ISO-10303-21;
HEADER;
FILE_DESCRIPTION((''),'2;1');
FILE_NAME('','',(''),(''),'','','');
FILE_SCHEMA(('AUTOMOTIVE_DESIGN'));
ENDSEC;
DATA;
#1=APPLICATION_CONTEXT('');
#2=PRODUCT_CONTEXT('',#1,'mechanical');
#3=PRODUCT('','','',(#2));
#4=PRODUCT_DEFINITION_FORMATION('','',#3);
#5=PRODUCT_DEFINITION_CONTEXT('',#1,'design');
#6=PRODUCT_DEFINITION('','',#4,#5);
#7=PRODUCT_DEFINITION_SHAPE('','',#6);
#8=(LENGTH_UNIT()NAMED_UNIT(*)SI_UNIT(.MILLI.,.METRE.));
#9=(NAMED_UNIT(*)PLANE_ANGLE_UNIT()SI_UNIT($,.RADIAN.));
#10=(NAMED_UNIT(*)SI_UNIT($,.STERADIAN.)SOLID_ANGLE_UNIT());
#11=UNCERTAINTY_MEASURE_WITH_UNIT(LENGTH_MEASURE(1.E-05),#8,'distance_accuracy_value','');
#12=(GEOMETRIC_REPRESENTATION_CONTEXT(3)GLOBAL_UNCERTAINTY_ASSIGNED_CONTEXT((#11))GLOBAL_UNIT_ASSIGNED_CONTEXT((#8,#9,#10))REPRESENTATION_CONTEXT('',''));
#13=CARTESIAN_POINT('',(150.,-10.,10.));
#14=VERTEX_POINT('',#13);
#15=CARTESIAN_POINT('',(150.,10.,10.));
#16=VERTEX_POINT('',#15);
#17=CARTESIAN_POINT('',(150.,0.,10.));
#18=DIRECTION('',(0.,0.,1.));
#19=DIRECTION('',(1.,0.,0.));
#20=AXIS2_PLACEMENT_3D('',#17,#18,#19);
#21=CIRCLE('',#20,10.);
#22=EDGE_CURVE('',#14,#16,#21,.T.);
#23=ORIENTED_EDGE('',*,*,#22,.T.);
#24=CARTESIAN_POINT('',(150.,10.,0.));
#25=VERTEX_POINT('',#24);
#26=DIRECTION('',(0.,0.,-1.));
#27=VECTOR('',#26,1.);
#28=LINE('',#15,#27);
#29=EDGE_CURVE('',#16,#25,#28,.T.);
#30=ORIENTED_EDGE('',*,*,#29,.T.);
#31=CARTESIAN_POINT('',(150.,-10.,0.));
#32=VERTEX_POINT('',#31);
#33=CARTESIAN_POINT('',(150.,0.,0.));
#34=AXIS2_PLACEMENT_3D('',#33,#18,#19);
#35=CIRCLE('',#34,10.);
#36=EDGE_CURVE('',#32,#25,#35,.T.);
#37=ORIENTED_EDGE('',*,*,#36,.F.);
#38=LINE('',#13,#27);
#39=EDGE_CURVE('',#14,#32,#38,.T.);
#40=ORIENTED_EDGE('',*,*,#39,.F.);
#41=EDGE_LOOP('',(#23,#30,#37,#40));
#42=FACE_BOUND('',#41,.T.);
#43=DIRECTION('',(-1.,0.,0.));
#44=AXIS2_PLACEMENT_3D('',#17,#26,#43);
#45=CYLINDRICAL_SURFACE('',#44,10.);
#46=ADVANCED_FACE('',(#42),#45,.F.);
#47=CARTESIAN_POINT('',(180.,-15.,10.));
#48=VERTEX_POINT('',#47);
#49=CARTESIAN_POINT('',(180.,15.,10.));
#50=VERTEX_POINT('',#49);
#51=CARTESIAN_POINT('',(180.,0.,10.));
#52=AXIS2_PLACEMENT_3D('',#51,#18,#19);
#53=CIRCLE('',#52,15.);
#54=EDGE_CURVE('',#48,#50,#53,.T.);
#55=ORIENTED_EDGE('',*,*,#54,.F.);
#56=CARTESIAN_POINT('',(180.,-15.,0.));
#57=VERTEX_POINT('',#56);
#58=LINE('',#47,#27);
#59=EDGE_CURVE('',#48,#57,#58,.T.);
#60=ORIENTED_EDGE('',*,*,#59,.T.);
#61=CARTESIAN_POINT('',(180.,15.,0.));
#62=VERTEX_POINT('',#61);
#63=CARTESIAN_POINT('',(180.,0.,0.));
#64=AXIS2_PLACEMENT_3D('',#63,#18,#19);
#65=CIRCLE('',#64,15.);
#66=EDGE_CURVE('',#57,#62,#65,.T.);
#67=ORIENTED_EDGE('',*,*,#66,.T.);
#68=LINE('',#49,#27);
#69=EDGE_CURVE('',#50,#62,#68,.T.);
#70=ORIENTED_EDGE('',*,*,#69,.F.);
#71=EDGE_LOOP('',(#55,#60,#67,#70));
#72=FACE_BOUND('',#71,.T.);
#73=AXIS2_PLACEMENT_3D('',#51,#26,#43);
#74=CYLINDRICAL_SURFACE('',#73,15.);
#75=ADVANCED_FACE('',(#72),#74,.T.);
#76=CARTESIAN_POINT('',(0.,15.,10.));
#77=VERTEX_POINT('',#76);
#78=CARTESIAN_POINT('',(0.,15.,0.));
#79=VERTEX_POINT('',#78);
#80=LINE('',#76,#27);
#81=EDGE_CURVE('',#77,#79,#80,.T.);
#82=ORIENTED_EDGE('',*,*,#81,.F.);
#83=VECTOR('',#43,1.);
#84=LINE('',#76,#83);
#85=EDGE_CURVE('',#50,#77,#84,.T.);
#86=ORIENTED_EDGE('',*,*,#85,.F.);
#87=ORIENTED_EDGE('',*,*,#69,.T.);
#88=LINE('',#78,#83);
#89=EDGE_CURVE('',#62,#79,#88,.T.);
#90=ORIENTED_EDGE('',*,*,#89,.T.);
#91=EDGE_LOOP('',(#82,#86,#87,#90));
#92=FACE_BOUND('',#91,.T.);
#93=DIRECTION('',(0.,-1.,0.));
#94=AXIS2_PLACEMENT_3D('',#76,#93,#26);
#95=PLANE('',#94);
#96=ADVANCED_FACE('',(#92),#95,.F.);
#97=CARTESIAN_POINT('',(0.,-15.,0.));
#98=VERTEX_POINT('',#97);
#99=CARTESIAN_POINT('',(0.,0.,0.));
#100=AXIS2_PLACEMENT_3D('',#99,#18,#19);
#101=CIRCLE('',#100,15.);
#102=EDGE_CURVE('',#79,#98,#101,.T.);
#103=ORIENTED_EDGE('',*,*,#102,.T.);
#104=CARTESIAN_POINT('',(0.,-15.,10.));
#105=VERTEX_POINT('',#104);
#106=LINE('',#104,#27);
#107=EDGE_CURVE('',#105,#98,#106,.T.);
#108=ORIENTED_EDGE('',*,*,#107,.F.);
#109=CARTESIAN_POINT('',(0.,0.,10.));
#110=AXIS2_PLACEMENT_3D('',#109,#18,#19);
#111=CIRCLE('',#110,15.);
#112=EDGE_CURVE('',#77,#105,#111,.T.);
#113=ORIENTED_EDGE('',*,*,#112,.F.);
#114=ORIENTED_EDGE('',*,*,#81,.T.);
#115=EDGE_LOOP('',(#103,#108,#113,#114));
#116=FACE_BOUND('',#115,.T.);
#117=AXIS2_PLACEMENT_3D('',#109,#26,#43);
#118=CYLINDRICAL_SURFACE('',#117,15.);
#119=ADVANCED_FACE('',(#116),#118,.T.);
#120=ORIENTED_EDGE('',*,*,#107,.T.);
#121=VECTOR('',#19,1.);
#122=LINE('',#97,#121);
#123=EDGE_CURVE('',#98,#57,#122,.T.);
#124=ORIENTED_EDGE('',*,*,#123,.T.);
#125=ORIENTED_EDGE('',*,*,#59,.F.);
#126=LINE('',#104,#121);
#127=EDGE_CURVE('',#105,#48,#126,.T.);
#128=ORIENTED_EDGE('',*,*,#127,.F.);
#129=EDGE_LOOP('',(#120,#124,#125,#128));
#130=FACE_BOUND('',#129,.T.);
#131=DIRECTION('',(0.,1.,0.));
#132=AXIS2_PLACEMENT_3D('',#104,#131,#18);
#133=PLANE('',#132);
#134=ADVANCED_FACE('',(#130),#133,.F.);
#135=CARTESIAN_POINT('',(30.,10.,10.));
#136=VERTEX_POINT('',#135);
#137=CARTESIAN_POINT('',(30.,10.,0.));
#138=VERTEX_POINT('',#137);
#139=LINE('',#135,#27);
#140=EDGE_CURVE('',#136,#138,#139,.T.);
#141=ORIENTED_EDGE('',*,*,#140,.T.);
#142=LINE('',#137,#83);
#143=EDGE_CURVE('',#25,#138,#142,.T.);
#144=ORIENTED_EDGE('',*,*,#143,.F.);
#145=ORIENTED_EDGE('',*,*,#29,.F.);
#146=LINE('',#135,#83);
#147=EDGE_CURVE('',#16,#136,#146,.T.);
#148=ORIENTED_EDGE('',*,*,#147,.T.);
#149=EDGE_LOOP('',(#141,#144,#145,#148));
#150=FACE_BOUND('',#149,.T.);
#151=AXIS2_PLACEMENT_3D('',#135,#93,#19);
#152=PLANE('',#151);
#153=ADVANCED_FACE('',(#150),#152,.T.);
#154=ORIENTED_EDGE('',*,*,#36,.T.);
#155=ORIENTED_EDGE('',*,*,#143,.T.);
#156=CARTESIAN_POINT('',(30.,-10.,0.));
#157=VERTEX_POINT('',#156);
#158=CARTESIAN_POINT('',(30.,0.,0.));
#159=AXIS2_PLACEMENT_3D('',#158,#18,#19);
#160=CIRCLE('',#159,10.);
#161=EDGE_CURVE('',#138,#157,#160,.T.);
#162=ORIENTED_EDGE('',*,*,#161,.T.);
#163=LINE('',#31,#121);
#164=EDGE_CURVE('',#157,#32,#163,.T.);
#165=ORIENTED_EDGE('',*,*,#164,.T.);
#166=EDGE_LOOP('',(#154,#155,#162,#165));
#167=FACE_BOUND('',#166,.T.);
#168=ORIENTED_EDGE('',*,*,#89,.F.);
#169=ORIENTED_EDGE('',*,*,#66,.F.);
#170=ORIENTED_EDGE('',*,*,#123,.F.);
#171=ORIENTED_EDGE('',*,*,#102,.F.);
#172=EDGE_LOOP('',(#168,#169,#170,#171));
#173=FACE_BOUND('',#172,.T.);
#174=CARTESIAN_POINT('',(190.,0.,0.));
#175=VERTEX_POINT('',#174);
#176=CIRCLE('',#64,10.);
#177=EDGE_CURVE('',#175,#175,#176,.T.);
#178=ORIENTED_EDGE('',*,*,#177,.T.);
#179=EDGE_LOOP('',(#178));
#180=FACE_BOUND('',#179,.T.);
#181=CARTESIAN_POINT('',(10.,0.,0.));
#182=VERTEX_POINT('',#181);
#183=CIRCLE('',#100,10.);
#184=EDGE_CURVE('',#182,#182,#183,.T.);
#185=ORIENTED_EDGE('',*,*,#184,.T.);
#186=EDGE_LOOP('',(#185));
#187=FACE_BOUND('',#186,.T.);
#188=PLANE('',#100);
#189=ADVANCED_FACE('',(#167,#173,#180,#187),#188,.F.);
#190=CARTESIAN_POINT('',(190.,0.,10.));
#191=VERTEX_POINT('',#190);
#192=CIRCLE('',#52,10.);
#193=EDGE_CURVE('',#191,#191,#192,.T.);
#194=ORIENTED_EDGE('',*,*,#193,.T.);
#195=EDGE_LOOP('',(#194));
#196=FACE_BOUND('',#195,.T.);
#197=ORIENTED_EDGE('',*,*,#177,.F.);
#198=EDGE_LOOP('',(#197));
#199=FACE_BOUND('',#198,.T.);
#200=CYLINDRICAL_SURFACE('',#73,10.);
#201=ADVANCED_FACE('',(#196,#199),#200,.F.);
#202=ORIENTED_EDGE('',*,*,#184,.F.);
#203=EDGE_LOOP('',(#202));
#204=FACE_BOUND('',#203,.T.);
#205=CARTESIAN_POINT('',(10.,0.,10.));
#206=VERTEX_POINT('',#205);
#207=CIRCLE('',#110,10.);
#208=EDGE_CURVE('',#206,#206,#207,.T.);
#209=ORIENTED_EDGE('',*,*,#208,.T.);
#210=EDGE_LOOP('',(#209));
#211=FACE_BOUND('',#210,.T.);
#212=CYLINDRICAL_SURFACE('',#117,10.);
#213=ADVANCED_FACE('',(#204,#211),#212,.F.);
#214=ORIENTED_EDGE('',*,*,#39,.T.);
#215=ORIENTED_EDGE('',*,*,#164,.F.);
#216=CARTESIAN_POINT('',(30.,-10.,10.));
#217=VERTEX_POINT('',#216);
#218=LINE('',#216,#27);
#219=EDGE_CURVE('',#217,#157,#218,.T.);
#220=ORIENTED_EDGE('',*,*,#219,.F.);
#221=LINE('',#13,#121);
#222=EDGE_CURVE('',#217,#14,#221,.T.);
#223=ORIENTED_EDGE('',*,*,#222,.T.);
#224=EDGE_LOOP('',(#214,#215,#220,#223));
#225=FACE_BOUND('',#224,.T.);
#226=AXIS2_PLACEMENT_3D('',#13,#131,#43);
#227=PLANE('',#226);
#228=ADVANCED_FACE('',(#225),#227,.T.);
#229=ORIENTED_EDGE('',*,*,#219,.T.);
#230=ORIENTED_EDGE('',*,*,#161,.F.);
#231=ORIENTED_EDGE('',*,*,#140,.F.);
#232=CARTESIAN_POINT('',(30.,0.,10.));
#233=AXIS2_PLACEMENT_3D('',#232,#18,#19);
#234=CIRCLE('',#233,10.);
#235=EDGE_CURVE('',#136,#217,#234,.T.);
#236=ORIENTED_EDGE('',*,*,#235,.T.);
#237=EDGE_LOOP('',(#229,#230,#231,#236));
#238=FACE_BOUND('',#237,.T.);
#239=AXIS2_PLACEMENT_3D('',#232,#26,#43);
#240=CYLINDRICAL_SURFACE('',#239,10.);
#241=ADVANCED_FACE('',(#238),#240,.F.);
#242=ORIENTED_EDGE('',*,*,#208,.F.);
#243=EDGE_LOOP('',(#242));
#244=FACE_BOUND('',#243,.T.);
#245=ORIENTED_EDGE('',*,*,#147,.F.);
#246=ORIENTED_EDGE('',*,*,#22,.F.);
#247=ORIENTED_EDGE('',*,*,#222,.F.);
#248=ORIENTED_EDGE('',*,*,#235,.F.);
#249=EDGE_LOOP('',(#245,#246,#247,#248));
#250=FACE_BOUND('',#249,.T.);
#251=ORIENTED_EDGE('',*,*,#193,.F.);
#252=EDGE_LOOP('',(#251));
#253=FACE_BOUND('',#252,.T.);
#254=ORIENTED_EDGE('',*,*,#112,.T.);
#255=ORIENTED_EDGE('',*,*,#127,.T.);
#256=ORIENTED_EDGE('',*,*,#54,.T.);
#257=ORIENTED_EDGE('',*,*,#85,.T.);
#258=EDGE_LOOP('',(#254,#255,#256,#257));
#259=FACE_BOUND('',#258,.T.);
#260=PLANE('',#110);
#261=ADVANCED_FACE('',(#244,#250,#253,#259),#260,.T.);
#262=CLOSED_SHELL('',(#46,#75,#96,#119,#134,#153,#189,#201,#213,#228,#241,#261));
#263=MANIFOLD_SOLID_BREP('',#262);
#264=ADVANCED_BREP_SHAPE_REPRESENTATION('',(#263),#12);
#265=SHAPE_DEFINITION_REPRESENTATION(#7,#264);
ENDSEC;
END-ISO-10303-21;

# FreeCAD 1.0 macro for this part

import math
import FreeCAD as App
import Part
import Sketcher

V = App.Vector

doc = App.newDocument("Part")
body = doc.addObject("PartDesign::Body", "Body")

# Sketch on XY plane
sketch1 = doc.addObject("Sketcher::SketchObject", "Sketch")
body.addObject(sketch1)
sketch1.AttachmentSupport = (doc.XY_Plane, [""])
sketch1.MapMode = "FlatFace"
sketch1.addGeometry([
    Part.LineSegment(V(180, 15, 0), V(0, 15, 0)),  # 0
    Part.ArcOfCircle(Part.Circle(V(0, 0, 0), V(0, 0, 1), 15), math.radians(90), math.radians(270)),  # 1
    Part.LineSegment(V(0, -15, 0), V(180, -15, 0)),  # 2
    Part.ArcOfCircle(Part.Circle(V(180, 0, 0), V(0, 0, 1), 15), math.radians(-90), math.radians(90)),  # 3
    Part.Circle(V(180, 0, 0), V(0, 0, 1), 10),  # 4
    Part.LineSegment(V(30, 10, 0), V(150, 10, 0)),  # 5
    Part.ArcOfCircle(Part.Circle(V(150, 0, 0), V(0, 0, 1), 10), math.radians(-90), math.radians(90)),  # 6
    Part.LineSegment(V(150, -10, 0), V(30, -10, 0)),  # 7
    Part.ArcOfCircle(Part.Circle(V(30, 0, 0), V(0, 0, 1), 10), math.radians(90), math.radians(270)),  # 8
    Part.Circle(V(0, 0, 0), V(0, 0, 1), 10),  # 9
], False)
sketch1.addConstraint([
    Sketcher.Constraint("Tangent", 0, 2, 1, 1),
    Sketcher.Constraint("Tangent", 1, 2, 2, 1),
    Sketcher.Constraint("Tangent", 2, 2, 3, 1),
    Sketcher.Constraint("Tangent", 3, 2, 0, 1),
    Sketcher.Constraint("Tangent", 5, 2, 6, 2),
    Sketcher.Constraint("Tangent", 6, 1, 7, 1),
    Sketcher.Constraint("Tangent", 7, 2, 8, 2),
    Sketcher.Constraint("Tangent", 8, 1, 5, 1),
    Sketcher.Constraint("Horizontal", 0),
    Sketcher.Constraint("Horizontal", 2),
    Sketcher.Constraint("Horizontal", 5),
    Sketcher.Constraint("Horizontal", 7),
    Sketcher.Constraint("Coincident", 1, 3, -1, 1),
    Sketcher.Constraint("Coincident", 9, 3, -1, 1),
    Sketcher.Constraint("Coincident", 4, 3, 3, 3),
    Sketcher.Constraint("Equal", 4, 6),
    Sketcher.Constraint("Equal", 8, 9),
    Sketcher.Constraint("PointOnObject", 6, 3, -1),
    Sketcher.Constraint("Diameter", 4, 20.0),
    Sketcher.Constraint("Radius", 1, 15.0),
    Sketcher.Constraint("DistanceX", 0, 2, 0, 1, 180.0),
    Sketcher.Constraint("DistanceX", 5, 1, 5, 2, 120.0),
    Sketcher.Constraint("DistanceX", -1, 1, 6, 3, 150.0),
])
pad1 = doc.addObject("PartDesign::Pad", "Pad")
body.addObject(pad1)
pad1.Profile = sketch1
pad1.Length = 10

doc.recompute()
